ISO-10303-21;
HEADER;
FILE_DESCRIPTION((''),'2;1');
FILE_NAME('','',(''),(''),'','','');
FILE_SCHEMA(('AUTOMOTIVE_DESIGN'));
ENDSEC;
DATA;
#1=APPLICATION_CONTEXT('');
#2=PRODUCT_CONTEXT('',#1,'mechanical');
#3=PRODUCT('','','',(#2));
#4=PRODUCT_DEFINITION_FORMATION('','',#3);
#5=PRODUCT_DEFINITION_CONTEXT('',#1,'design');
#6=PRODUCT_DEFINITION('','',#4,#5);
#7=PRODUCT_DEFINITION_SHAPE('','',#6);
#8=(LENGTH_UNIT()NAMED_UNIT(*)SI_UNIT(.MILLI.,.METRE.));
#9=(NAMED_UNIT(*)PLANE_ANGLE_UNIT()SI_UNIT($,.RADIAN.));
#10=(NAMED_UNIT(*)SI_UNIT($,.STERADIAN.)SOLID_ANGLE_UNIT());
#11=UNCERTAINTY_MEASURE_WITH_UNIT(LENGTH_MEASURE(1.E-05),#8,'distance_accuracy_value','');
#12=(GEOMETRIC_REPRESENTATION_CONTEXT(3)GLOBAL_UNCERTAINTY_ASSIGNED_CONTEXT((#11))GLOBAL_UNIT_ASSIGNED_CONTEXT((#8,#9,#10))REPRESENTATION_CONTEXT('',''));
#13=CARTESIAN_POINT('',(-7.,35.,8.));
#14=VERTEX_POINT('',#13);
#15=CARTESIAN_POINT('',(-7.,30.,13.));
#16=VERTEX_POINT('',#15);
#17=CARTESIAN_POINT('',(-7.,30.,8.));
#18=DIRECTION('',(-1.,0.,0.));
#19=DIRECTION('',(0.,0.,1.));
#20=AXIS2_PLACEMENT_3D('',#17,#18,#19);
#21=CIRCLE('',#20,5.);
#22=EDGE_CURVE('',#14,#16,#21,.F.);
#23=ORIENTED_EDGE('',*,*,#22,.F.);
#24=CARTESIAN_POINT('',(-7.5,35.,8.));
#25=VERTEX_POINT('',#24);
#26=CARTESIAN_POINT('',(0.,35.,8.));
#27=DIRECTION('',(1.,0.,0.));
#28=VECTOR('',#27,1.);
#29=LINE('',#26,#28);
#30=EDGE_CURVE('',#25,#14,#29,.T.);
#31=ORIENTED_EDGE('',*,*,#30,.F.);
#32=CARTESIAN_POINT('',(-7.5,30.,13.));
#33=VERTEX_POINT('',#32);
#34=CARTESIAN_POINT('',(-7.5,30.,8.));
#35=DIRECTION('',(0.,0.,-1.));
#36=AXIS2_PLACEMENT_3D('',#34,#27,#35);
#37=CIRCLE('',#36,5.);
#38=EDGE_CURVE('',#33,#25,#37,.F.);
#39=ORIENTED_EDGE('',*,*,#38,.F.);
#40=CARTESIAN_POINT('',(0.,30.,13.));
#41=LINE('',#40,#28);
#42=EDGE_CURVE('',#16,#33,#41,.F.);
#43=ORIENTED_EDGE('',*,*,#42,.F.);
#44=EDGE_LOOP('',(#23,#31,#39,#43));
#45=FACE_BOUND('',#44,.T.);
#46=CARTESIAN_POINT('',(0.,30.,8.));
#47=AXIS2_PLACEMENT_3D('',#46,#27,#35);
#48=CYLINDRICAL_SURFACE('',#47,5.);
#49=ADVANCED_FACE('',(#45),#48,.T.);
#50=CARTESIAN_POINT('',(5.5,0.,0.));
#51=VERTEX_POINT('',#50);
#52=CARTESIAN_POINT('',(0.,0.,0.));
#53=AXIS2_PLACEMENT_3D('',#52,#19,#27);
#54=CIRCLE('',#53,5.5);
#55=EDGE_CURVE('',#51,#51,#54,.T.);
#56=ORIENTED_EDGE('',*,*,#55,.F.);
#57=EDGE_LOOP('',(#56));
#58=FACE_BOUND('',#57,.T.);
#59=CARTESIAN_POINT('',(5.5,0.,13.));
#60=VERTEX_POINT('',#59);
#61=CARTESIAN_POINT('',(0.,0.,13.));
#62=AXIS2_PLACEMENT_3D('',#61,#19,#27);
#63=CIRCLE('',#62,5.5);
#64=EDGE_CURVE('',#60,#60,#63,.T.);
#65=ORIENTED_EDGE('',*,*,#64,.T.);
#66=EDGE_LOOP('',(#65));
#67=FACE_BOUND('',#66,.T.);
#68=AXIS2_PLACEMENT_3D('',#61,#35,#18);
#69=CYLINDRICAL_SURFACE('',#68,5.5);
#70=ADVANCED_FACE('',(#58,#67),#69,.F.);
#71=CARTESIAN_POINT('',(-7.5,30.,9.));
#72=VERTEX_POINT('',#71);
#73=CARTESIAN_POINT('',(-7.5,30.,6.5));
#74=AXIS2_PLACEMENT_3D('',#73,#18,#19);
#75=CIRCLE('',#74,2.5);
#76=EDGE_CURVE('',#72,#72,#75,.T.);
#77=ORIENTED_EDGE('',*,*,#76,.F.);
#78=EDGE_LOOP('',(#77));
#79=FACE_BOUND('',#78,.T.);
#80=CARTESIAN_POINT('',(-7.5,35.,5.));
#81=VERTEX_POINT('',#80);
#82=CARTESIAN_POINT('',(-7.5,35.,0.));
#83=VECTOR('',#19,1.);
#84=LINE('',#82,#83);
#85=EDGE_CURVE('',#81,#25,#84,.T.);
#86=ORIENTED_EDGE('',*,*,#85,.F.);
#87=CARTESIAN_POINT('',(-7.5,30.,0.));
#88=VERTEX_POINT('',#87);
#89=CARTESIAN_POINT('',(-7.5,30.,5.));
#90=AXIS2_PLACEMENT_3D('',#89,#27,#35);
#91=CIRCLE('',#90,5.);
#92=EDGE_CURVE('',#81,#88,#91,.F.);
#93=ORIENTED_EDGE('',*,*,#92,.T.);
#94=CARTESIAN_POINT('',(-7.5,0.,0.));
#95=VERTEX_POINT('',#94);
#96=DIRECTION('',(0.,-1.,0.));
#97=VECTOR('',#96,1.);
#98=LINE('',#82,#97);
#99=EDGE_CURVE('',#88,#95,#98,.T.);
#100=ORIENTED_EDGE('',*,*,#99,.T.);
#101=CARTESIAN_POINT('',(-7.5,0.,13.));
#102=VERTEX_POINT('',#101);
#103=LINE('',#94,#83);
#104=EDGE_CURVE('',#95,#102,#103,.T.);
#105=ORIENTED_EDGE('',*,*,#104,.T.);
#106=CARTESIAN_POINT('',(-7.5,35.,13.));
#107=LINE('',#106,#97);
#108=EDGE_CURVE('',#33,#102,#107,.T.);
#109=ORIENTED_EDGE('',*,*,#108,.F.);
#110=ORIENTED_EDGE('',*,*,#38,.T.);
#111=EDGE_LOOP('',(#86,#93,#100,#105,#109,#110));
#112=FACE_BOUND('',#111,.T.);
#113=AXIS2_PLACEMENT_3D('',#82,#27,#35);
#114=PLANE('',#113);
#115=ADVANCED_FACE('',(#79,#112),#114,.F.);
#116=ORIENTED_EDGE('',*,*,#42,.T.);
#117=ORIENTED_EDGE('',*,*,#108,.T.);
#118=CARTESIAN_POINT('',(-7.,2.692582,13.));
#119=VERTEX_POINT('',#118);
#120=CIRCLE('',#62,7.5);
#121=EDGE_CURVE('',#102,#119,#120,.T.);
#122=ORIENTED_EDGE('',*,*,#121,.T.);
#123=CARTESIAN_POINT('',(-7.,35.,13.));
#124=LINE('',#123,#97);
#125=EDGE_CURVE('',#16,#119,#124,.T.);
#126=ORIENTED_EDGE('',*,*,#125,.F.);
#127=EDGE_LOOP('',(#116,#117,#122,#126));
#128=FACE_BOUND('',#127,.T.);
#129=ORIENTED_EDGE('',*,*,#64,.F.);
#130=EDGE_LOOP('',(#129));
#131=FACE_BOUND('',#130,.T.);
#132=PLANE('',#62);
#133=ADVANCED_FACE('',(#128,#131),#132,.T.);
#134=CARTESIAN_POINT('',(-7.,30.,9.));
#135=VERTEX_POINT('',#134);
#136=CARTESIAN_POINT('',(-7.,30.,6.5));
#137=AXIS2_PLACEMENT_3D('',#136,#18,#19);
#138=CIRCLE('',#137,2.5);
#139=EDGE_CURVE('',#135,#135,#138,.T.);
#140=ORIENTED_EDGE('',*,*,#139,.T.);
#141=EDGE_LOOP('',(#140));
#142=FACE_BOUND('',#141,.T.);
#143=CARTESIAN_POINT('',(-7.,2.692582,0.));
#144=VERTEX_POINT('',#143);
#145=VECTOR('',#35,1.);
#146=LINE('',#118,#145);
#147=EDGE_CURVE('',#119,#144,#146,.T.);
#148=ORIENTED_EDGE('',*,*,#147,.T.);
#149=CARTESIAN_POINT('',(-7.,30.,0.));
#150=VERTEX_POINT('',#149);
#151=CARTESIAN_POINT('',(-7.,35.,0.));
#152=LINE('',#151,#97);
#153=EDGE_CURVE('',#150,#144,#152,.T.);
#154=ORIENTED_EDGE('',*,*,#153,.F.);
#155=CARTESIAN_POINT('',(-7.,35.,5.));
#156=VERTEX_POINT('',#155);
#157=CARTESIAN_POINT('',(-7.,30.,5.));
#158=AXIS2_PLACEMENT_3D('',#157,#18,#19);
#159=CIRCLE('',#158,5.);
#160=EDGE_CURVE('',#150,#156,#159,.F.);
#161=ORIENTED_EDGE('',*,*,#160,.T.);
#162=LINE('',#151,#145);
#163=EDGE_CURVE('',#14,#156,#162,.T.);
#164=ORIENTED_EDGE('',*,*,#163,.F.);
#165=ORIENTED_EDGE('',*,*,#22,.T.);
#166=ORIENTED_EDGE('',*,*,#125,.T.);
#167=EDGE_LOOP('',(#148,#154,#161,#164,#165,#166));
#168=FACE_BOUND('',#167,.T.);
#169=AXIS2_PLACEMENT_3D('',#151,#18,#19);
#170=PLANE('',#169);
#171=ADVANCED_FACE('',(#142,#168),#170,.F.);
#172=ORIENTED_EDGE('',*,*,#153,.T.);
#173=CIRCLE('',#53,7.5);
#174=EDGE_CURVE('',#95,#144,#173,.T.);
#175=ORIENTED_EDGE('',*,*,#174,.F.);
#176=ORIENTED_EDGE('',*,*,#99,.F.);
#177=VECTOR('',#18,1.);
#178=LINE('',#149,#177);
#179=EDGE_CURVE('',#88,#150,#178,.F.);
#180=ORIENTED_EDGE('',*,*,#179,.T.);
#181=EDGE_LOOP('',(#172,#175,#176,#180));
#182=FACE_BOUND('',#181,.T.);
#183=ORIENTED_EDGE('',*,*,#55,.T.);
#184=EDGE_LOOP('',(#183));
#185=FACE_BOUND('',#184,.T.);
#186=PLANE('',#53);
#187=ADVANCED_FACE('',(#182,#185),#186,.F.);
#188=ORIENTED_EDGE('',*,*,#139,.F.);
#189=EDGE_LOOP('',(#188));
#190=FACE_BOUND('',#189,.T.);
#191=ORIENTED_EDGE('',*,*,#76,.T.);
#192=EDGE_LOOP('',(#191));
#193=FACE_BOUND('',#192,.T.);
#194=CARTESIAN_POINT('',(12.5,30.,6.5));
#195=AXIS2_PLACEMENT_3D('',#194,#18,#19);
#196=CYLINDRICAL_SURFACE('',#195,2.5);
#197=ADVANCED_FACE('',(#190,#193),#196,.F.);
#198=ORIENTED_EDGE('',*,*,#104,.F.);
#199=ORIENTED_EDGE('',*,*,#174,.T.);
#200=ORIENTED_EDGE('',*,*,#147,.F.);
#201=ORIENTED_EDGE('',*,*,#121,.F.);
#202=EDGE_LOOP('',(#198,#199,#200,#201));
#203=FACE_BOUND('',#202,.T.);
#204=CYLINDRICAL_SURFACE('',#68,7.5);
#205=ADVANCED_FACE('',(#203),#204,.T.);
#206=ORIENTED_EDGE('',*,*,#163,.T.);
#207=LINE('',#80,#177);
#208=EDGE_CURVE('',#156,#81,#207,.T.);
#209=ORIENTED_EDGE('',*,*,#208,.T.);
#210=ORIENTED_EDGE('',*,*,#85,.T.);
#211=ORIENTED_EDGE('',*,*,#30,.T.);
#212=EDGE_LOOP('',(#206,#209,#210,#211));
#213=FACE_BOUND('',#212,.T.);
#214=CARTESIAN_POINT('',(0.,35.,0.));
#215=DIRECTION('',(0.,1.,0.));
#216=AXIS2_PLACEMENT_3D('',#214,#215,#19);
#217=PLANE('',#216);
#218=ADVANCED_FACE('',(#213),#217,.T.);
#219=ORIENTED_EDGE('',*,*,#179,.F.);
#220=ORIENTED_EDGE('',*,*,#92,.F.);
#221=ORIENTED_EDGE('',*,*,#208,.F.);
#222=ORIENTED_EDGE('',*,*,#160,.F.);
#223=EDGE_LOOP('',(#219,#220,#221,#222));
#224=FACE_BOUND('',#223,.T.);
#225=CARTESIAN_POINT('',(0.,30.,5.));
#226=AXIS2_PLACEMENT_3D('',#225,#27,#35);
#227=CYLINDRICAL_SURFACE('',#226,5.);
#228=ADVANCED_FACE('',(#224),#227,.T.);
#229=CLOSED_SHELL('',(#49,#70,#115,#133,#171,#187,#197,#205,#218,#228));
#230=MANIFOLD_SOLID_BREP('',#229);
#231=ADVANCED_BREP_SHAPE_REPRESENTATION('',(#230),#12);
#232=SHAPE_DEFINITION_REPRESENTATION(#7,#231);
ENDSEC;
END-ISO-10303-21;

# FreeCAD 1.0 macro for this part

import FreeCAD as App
import Part
import Sketcher

V = App.Vector
Q = App.Units.Quantity


def edges_at(feature, points):
    """Names of the edges that pass closest to the given points."""
    edges = feature.Shape.Edges
    near = lambda p: min(range(len(edges)), key=lambda i: edges[i].distToShape(Part.Vertex(*p))[0])
    return sorted({f"Edge{near(p) + 1}" for p in points})


def add_polygon(sketch, points):
    """Adds a closed chain of lines whose ends are joined by coincident constraints."""
    first, n = sketch.GeometryCount, len(points)
    for a, b in zip(points, points[1:] + points[:1]):
        sketch.addGeometry(Part.LineSegment(App.Vector(*a, 0), App.Vector(*b, 0)), False)
    for i in range(n):
        sketch.addConstraint(Sketcher.Constraint("Coincident", first + i, 2, first + (i + 1) % n, 1))

doc = App.newDocument("Part")
body = doc.addObject("PartDesign::Body", "Body")

# Sketch on XY plane
sketch1 = doc.addObject("Sketcher::SketchObject", "Sketch")
body.addObject(sketch1)
sketch1.AttachmentSupport = (doc.XY_Plane, [""])
sketch1.MapMode = "FlatFace"
sketch1.addGeometry([
    Part.Circle(V(0, 0, 0), V(0, 0, 1), 7.5),
    Part.Circle(V(0, 0, 0), V(0, 0, 1), 5.5),
], False)
sketch1.addConstraint([
    Sketcher.Constraint("Coincident", 0, 3, -1, 1),
    Sketcher.Constraint("Coincident", 1, 3, -1, 1),
    Sketcher.Constraint("Diameter", 0, Q("15 mm")),
    Sketcher.Constraint("Diameter", 1, Q("11 mm")),
])
pad1 = doc.addObject("PartDesign::Pad", "Pad")
body.addObject(pad1)
pad1.Profile = sketch1
pad1.Length = 13

# Sketch on XZ plane
sketch2 = doc.addObject("Sketcher::SketchObject", "Sketch001")
body.addObject(sketch2)
sketch2.AttachmentSupport = (doc.XZ_Plane, [""])
sketch2.MapMode = "FlatFace"
add_polygon(sketch2, [(-7.5, 0), (-7.5, 13), (-7, 13), (-7, 0)])  # lines 0-3
sketch2.addConstraint([
    Sketcher.Constraint("Vertical", 0),
    Sketcher.Constraint("Horizontal", 1),
    Sketcher.Constraint("Vertical", 2),
    Sketcher.Constraint("Horizontal", 3),
    Sketcher.Constraint("PointOnObject", 2, 2, -1),
    Sketcher.Constraint("DistanceY", 0, 1, 0, 2, Q("13 mm")),
    Sketcher.Constraint("DistanceX", 1, 1, 1, 2, Q("0.5 mm")),
    Sketcher.Constraint("DistanceX", 1, 2, -1, 1, Q("7 mm")),
])
pad2 = doc.addObject("PartDesign::Pad", "Pad001")
body.addObject(pad2)
pad2.Profile = sketch2
pad2.Length = 35
pad2.Reversed = True

# Sketch on YZ plane
sketch3 = doc.addObject("Sketcher::SketchObject", "Sketch002")
body.addObject(sketch3)
sketch3.AttachmentSupport = (doc.YZ_Plane, [""])
sketch3.MapMode = "FlatFace"
sketch3.AttachmentOffset = App.Placement(V(0, 0, -7.5), App.Rotation())
sketch3.addGeometry(Part.Circle(V(30, 6.5, 0), V(0, 0, 1), 2.5), False)
sketch3.addConstraint([
    Sketcher.Constraint("Diameter", 0, Q("5 mm")),
    Sketcher.Constraint("DistanceX", -1, 1, 0, 3, Q("30 mm")),
    Sketcher.Constraint("DistanceY", -1, 1, 0, 3, Q("6.5 mm")),
])
pocket1 = doc.addObject("PartDesign::Pocket", "Pocket")
body.addObject(pocket1)
pocket1.Profile = sketch3
pocket1.Length = 20
pocket1.Reversed = True
doc.recompute()

fillet = doc.addObject("PartDesign::Fillet", "Fillet")
body.addObject(fillet)
fillet.Base = (pocket1, edges_at(pocket1, [(-7.25, 35, 13), (-7.25, 35, 0)]))
fillet.Radius = 5

doc.recompute()
